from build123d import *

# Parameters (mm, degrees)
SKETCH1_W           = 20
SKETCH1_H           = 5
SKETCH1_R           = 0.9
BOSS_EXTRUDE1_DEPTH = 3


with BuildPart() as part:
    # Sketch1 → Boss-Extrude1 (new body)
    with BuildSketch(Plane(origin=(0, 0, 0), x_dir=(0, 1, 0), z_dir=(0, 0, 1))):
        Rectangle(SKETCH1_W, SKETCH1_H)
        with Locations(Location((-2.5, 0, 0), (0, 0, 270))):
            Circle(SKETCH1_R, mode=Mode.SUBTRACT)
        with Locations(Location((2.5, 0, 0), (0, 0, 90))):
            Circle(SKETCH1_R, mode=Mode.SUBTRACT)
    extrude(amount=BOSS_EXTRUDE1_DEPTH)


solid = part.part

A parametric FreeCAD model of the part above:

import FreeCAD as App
import Part
import Sketcher
Q = App.Units.Quantity


def add_polygon(sketch, points):
    """Adds a closed chain of lines whose ends are joined by coincident constraints."""
    first, n = sketch.GeometryCount, len(points)
    for a, b in zip(points, points[1:] + points[:1]):
        sketch.addGeometry(Part.LineSegment(App.Vector(*a, 0), App.Vector(*b, 0)), False)
    for i in range(n):
        sketch.addConstraint(Sketcher.Constraint("Coincident", first + i, 2, first + (i + 1) % n, 1))

doc = App.newDocument("Part")
body = doc.addObject("PartDesign::Body", "Body")

# Sketch on XY plane
sketch1 = body.newObject("Sketcher::SketchObject", "Sketch")
sketch1.AttachmentSupport = (doc.getObject("XY_Plane"), [""])
sketch1.MapMode = "FlatFace"
add_polygon(sketch1, [(-2.5, -10), (2.5, -10), (2.5, 10), (-2.5, 10)])  # lines 0-3
sketch1.addGeometry(Part.Circle(App.Vector(0, -2.5, 0), App.Vector(0, 0, 1), 0.9), False)  # 4
sketch1.addGeometry(Part.Circle(App.Vector(0, 2.5, 0), App.Vector(0, 0, 1), 0.9), False)  # 5
sketch1.addConstraint([
    Sketcher.Constraint("Horizontal", 0),
    Sketcher.Constraint("Vertical", 1),
    Sketcher.Constraint("Horizontal", 2),
    Sketcher.Constraint("Vertical", 3),
    Sketcher.Constraint("Equal", 4, 5),
    Sketcher.Constraint("Symmetric", 4, 3, 5, 3, -1, 1),
    Sketcher.Constraint("Symmetric", 0, 2, 2, 2, -1, 1),
    Sketcher.Constraint("PointOnObject", 4, 3, -2),
    Sketcher.Constraint("Diameter", 4, Q("1.8 mm")),
    Sketcher.Constraint("DistanceX", 0, 1, 0, 2, Q("5 mm")),
    Sketcher.Constraint("DistanceY", 1, 1, 1, 2, Q("20 mm")),
    Sketcher.Constraint("DistanceY", 4, 3, 5, 3, Q("5 mm")),
])
pad1 = body.newObject("PartDesign::Pad", "Pad")
pad1.Profile = sketch1
pad1.Length = 3

doc.recompute()
